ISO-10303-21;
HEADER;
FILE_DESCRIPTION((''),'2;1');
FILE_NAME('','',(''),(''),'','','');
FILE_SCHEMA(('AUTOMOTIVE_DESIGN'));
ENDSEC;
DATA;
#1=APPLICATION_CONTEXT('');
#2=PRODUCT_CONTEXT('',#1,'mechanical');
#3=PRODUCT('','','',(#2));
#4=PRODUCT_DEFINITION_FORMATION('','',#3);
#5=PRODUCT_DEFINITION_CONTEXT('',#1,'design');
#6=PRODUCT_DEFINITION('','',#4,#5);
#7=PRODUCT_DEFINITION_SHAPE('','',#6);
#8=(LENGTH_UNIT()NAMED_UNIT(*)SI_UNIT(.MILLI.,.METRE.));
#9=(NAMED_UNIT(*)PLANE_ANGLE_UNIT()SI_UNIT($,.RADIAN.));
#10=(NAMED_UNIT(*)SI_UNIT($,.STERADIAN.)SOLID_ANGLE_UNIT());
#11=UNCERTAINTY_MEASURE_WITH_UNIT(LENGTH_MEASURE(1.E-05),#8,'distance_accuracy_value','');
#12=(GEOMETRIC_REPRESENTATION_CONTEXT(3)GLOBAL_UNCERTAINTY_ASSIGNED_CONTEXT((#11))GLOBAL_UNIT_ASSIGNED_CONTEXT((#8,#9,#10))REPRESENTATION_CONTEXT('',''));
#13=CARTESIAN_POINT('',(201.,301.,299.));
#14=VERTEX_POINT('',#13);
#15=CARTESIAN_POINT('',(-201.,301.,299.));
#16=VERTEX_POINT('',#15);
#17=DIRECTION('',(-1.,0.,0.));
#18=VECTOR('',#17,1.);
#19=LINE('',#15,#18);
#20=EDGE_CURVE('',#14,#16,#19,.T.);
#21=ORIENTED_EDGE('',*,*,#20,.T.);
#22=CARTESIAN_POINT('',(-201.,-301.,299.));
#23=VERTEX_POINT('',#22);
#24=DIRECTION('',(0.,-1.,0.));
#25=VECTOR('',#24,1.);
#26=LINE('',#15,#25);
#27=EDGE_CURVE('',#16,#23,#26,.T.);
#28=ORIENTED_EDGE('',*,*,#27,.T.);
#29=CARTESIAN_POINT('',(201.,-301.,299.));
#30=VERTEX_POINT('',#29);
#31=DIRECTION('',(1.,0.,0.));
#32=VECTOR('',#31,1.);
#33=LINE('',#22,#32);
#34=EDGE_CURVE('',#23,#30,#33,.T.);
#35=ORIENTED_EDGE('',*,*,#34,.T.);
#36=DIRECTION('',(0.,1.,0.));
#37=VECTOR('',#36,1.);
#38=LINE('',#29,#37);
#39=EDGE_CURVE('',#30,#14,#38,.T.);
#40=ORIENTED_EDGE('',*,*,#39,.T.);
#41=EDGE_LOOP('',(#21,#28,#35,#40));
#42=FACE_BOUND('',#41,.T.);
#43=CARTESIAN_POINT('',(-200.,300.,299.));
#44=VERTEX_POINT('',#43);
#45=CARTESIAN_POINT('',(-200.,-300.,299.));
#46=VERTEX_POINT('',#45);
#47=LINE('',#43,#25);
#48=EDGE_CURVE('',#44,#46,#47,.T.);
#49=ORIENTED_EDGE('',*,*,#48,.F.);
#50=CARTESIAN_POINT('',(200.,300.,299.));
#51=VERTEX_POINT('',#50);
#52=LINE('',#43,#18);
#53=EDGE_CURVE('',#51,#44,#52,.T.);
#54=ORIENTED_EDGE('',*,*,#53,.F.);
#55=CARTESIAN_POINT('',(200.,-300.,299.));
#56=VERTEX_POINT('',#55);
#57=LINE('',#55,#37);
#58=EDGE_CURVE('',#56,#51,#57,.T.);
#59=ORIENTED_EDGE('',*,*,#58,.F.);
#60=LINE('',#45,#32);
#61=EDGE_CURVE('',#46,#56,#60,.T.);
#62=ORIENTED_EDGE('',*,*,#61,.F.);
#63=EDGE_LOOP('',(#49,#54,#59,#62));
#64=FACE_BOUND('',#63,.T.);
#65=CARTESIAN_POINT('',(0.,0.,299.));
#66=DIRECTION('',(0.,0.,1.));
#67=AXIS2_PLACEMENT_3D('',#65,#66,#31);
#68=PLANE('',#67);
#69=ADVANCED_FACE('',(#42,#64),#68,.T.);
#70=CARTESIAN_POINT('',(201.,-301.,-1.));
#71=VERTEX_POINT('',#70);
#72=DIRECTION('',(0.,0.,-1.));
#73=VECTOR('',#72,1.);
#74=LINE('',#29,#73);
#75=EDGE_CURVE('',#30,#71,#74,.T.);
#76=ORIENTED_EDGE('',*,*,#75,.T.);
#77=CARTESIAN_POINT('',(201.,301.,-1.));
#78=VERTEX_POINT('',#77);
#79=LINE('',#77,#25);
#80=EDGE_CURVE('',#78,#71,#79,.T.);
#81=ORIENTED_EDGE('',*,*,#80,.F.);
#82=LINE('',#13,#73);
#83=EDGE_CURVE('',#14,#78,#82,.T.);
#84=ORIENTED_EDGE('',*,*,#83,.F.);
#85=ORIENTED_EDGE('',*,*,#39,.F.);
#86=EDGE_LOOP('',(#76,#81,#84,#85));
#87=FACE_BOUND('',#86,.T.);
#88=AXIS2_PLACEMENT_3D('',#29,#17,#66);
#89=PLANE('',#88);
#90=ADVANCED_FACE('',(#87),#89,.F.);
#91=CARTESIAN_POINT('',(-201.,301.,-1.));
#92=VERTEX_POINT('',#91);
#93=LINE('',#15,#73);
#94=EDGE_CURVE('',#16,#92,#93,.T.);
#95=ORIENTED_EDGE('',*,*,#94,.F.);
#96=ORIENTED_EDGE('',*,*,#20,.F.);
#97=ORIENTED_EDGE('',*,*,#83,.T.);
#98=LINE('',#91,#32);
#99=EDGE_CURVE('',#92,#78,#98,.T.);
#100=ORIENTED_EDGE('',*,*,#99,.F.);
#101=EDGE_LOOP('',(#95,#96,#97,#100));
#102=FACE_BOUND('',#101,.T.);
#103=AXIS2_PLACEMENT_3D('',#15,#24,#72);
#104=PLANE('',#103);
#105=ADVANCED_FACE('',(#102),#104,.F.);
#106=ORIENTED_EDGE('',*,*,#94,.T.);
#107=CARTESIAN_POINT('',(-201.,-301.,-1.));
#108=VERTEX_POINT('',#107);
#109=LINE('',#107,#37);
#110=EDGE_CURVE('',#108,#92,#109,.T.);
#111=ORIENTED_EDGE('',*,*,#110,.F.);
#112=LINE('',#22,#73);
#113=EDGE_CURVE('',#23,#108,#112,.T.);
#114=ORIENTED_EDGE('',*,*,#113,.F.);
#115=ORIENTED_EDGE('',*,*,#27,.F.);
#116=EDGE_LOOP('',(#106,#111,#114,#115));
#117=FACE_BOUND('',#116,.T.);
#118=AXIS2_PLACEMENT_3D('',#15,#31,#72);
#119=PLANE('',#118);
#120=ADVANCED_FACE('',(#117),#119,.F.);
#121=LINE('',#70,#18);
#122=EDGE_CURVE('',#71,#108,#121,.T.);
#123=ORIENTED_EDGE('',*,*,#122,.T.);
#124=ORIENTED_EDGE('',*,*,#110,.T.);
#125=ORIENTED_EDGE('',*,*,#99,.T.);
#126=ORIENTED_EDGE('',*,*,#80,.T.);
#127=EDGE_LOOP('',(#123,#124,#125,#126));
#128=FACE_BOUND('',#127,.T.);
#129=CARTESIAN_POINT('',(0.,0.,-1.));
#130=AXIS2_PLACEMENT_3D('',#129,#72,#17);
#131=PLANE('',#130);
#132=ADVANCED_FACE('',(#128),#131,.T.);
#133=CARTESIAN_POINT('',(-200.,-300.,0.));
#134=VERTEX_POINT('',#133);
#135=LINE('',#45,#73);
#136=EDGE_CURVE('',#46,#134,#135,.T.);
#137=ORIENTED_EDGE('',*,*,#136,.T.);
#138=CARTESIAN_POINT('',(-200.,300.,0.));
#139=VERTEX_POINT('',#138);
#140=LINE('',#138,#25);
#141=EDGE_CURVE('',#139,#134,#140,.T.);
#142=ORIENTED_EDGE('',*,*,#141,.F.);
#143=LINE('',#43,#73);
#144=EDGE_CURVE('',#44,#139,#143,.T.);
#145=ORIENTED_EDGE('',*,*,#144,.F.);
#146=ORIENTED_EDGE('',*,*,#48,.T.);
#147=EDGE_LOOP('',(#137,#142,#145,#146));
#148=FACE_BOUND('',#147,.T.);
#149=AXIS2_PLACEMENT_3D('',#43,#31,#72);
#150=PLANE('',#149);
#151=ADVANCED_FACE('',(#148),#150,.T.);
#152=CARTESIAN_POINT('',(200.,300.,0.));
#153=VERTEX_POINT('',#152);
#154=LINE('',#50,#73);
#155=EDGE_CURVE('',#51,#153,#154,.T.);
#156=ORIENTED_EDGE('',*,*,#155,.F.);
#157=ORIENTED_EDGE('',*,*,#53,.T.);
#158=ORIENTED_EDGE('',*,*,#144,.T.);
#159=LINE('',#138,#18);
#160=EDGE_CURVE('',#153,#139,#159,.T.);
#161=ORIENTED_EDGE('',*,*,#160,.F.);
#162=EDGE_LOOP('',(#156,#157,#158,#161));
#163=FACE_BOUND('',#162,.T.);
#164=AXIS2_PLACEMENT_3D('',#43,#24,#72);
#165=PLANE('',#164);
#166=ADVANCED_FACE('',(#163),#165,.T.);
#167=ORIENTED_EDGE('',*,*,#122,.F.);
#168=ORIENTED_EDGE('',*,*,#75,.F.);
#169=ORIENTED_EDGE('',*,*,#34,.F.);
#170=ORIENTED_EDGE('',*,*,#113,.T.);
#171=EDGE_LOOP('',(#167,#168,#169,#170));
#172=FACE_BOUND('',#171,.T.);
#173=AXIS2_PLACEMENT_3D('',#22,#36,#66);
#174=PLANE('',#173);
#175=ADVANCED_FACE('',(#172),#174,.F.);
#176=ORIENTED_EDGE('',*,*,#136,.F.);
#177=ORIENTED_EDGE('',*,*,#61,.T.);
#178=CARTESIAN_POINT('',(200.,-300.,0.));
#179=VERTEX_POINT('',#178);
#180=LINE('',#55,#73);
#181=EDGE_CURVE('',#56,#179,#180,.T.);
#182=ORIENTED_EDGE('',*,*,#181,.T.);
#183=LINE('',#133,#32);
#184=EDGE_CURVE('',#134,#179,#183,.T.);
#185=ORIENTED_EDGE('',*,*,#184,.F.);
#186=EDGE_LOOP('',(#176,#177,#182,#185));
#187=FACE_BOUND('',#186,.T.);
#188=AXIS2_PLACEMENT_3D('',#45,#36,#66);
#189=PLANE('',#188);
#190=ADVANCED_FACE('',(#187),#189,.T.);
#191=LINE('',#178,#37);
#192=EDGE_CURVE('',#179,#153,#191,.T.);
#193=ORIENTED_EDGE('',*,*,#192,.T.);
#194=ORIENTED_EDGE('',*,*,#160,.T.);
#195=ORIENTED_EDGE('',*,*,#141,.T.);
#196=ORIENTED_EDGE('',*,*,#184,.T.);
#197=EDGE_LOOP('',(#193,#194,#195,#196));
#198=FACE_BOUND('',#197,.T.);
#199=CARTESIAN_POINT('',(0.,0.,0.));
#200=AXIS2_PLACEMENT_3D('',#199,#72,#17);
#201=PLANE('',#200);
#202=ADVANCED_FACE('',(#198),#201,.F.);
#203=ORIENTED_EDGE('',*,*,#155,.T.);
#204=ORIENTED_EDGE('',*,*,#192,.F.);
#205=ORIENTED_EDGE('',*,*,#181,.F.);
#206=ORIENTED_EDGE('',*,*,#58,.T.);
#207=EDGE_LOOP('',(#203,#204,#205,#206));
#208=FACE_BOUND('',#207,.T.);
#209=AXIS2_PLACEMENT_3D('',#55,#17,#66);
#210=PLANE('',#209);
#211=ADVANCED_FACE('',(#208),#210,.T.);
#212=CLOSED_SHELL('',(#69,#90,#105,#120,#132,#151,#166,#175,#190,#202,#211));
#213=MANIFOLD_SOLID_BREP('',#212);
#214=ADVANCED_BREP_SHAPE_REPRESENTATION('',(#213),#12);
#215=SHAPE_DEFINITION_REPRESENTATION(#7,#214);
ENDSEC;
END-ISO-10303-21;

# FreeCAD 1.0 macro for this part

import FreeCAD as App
import Part
import Sketcher

V = App.Vector
Q = App.Units.Quantity


def add_polygon(sketch, points):
    """Adds a closed chain of lines whose ends are joined by coincident constraints."""
    first, n = sketch.GeometryCount, len(points)
    for a, b in zip(points, points[1:] + points[:1]):
        sketch.addGeometry(Part.LineSegment(App.Vector(*a, 0), App.Vector(*b, 0)), False)
    for i in range(n):
        sketch.addConstraint(Sketcher.Constraint("Coincident", first + i, 2, first + (i + 1) % n, 1))

doc = App.newDocument("Part")
params = doc.addObject("Spreadsheet::Sheet", "Params")
for row, (alias, value) in enumerate([
    ("sketch1_width", "402 mm"),
    ("sketch1_width2", "400 mm"),
    ("sketch1_height", "602 mm"),
    ("sketch1_height2", "600 mm"),
    ("pad1_length", "299 mm"),
    ("sketch2_width", "402 mm"),
    ("sketch2_height", "602 mm"),
    ("pad2_length", "1 mm"),
], start=1):
    params.set(f"A{row}", alias)
    params.set(f"B{row}", "=" + value)
    params.setAlias(f"B{row}", alias)

body = doc.addObject("PartDesign::Body", "Body")

# Sketch on XY plane
sketch1 = body.newObject("Sketcher::SketchObject", "Sketch")
sketch1.AttachmentSupport = (doc.getObject("XY_Plane"), [""])
sketch1.MapMode = "FlatFace"
add_polygon(sketch1, [(-201, 301), (-201, -301), (201, -301), (201, 301)])  # lines 0-3
add_polygon(sketch1, [(200, -300), (-200, -300), (-200, 300), (200, 300)])  # lines 4-7
sketch1.addConstraint([
    Sketcher.Constraint("Vertical", 0),
    Sketcher.Constraint("Horizontal", 1),
    Sketcher.Constraint("Vertical", 2),
    Sketcher.Constraint("Horizontal", 3),
    Sketcher.Constraint("Horizontal", 4),
    Sketcher.Constraint("Vertical", 5),
    Sketcher.Constraint("Horizontal", 6),
    Sketcher.Constraint("Vertical", 7),
    Sketcher.Constraint("Symmetric", 0, 2, 2, 2, -1, 1),
    Sketcher.Constraint("Symmetric", 4, 2, 6, 2, -1, 1),
    Sketcher.Constraint("DistanceX", 1, 1, 1, 2, Q("402 mm")),
    Sketcher.Constraint("DistanceX", 4, 2, 4, 1, Q("400 mm")),
    Sketcher.Constraint("DistanceY", 0, 2, 0, 1, Q("602 mm")),
    Sketcher.Constraint("DistanceY", 5, 1, 5, 2, Q("600 mm")),
])
sketch1.setExpression("Constraints[18]", "Params.sketch1_width")
sketch1.setExpression("Constraints[19]", "Params.sketch1_width2")
sketch1.setExpression("Constraints[20]", "Params.sketch1_height")
sketch1.setExpression("Constraints[21]", "Params.sketch1_height2")
pad1 = body.newObject("PartDesign::Pad", "Pad")
pad1.Profile = sketch1
pad1.setExpression("Length", "Params.pad1_length")

# Sketch on XY plane
sketch2 = body.newObject("Sketcher::SketchObject", "Sketch001")
sketch2.AttachmentSupport = (doc.getObject("XY_Plane"), [""])
sketch2.MapMode = "FlatFace"
add_polygon(sketch2, [(201, 301), (201, -301), (-201, -301), (-201, 301)])  # lines 0-3
sketch2.addConstraint([
    Sketcher.Constraint("Vertical", 0),
    Sketcher.Constraint("Horizontal", 1),
    Sketcher.Constraint("Vertical", 2),
    Sketcher.Constraint("Horizontal", 3),
    Sketcher.Constraint("Symmetric", 0, 2, 2, 2, -1, 1),
    Sketcher.Constraint("DistanceX", 1, 2, 1, 1, Q("402 mm")),
    Sketcher.Constraint("DistanceY", 0, 2, 0, 1, Q("602 mm")),
])
sketch2.setExpression("Constraints[9]", "Params.sketch2_width")
sketch2.setExpression("Constraints[10]", "Params.sketch2_height")
pad2 = body.newObject("PartDesign::Pad", "Pad001")
pad2.Profile = sketch2
pad2.setExpression("Length", "Params.pad2_length")
pad2.Reversed = True

doc.recompute()
